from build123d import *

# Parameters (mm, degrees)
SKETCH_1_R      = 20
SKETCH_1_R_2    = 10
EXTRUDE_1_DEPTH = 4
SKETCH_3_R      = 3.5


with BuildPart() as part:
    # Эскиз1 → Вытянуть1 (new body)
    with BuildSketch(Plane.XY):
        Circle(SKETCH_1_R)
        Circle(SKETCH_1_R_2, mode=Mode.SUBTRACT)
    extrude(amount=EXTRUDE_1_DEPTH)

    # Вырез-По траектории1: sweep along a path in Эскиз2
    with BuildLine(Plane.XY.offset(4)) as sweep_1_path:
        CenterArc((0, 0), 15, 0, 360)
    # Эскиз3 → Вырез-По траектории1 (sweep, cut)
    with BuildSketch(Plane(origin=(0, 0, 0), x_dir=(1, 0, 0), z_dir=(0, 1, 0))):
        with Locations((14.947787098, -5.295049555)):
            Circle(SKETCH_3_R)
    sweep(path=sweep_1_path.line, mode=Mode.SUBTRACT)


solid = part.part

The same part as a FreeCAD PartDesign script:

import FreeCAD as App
import Part
import Sketcher
from FreeCAD import Vector
Q = App.Units.Quantity

doc = App.newDocument("Part")
body = doc.addObject("PartDesign::Body", "Body")

# Sketch on XY plane
sketch1 = doc.addObject("Sketcher::SketchObject", "Sketch")
body.addObject(sketch1)
sketch1.AttachmentSupport = (doc.XY_Plane, [""])
sketch1.MapMode = "FlatFace"
sketch1.addGeometry([
    Part.Circle(Vector(0, 0, 0), Vector(0, 0, 1), 20),
    Part.Circle(Vector(0, 0, 0), Vector(0, 0, 1), 10),
], False)
sketch1.addConstraint([
    Sketcher.Constraint("Coincident", 0, 3, -1, 1),
    Sketcher.Constraint("Coincident", 1, 3, -1, 1),
    Sketcher.Constraint("Diameter", 0, Q("40 mm")),
    Sketcher.Constraint("Diameter", 1, Q("20 mm")),
])
pad1 = doc.addObject("PartDesign::Pad", "Pad")
body.addObject(pad1)
pad1.Profile = sketch1
pad1.Length = 4

# Sketch on XZ plane
sketch2 = doc.addObject("Sketcher::SketchObject", "Sketch001")
body.addObject(sketch2)
sketch2.AttachmentSupport = (doc.XZ_Plane, [""])
sketch2.MapMode = "FlatFace"
sketch2.addGeometry(Part.Circle(Vector(14.9, 5.3, 0), Vector(0, 0, 1), 3.5), False)
sketch2.addConstraint([
    Sketcher.Constraint("Diameter", 0, Q("7 mm")),
    Sketcher.Constraint("DistanceY", -1, 1, 0, 3, Q("5.29505 mm")),
    Sketcher.Constraint("DistanceX", -1, 1, 0, 3, Q("14.947787 mm")),
])

# Sketch on XY plane
sketch3 = doc.addObject("Sketcher::SketchObject", "Sketch002")
body.addObject(sketch3)
sketch3.AttachmentSupport = (doc.XY_Plane, [""])
sketch3.MapMode = "FlatFace"
sketch3.AttachmentOffset = App.Placement(Vector(0, 0, 4), App.Rotation())
sketch3.addGeometry(Part.Circle(Vector(0, 0, 0), Vector(0, 0, 1), 15), False)
sketch3.addConstraint([
    Sketcher.Constraint("Coincident", 0, 3, -1, 1),
    Sketcher.Constraint("Diameter", 0, Q("30 mm")),
])
doc.recompute()

subtractivepipe = doc.addObject("PartDesign::SubtractivePipe", "SubtractivePipe")
body.addObject(subtractivepipe)
subtractivepipe.Profile = sketch2
subtractivepipe.Spine = (sketch3, ["Edge1"])

doc.recompute()
